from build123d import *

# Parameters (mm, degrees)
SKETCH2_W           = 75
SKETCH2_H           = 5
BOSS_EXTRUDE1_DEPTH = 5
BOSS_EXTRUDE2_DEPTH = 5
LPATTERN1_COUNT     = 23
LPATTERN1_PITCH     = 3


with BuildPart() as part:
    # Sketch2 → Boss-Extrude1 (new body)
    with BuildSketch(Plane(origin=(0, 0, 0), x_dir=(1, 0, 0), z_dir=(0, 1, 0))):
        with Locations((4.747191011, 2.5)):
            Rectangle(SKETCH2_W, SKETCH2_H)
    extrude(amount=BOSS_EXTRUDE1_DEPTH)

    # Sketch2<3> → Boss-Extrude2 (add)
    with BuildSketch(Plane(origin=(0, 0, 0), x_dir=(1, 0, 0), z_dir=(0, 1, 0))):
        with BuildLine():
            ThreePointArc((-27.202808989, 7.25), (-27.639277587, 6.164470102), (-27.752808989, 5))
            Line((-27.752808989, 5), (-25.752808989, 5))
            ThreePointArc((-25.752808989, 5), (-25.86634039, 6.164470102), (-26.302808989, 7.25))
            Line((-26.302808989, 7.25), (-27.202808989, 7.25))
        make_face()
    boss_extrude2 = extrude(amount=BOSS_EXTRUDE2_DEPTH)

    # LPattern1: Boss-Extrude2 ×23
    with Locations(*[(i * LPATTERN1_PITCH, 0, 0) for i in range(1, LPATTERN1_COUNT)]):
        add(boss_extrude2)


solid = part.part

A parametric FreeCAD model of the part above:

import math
import FreeCAD as App
import Part
import Sketcher
Q = App.Units.Quantity

doc = App.newDocument("Part")
body = doc.addObject("PartDesign::Body", "Body")

# Sketch on XZ plane
sketch1 = doc.addObject("Sketcher::SketchObject", "Sketch")
body.addObject(sketch1)
sketch1.AttachmentSupport = (doc.XZ_Plane, [""])
sketch1.MapMode = "FlatFace"
sketch1.addGeometry(Part.LineSegment(App.Vector(-32.752809, -5, 0), App.Vector(-32.752809, 0, 0)), False)
sketch1.addGeometry(Part.LineSegment(App.Vector(-32.752809, 0, 0), App.Vector(42.247191, 0, 0)), False)
sketch1.addGeometry(Part.LineSegment(App.Vector(42.247191, 0, 0), App.Vector(42.247191, -5, 0)), False)
sketch1.addGeometry(Part.LineSegment(App.Vector(42.247191, -5, 0), App.Vector(-32.752809, -5, 0)), False)
sketch1.addConstraint(Sketcher.Constraint("Coincident", 0, 2, 1, 1))
sketch1.addConstraint(Sketcher.Constraint("Coincident", 1, 2, 2, 1))
sketch1.addConstraint(Sketcher.Constraint("Coincident", 2, 2, 3, 1))
sketch1.addConstraint(Sketcher.Constraint("Coincident", 3, 2, 0, 1))
sketch1.addConstraint(Sketcher.Constraint("Vertical", 0))
sketch1.addConstraint(Sketcher.Constraint("Horizontal", 1))
sketch1.addConstraint(Sketcher.Constraint("Vertical", 2))
sketch1.addConstraint(Sketcher.Constraint("Horizontal", 3))
sketch1.addConstraint(Sketcher.Constraint("PointOnObject", 0, 2, -1))
sketch1.addConstraint(Sketcher.Constraint("DistanceX", 1, 1, 1, 2, Q("75 mm")))
sketch1.addConstraint(Sketcher.Constraint("DistanceY", 0, 1, 0, 2, Q("5 mm")))
sketch1.addConstraint(Sketcher.Constraint("DistanceX", 0, 2, -1, 1, Q("32.752809 mm")))
pad1 = doc.addObject("PartDesign::Pad", "Pad")
body.addObject(pad1)
pad1.Profile = sketch1
pad1.Length = 5
pad1.Reversed = True

# Sketch on XZ plane
sketch2 = doc.addObject("Sketcher::SketchObject", "Sketch001")
body.addObject(sketch2)
sketch2.AttachmentSupport = (doc.XZ_Plane, [""])
sketch2.MapMode = "FlatFace"
sketch2.addGeometry(Part.ArcOfCircle(Part.Circle(App.Vector(-23.639438, -5.186731, 0), App.Vector(0, 0, 1), 4.117608), math.radians(177.400774), math.radians(210.071763)), False)
sketch2.addGeometry(Part.LineSegment(App.Vector(-27.752809, -5, 0), App.Vector(-25.752809, -5, 0)), False)
sketch2.addGeometry(Part.ArcOfCircle(Part.Circle(App.Vector(-29.86618, -5.186731, 0), App.Vector(0, 0, 1), 4.117608), math.radians(-30.071763), math.radians(2.599226)), False)
sketch2.addGeometry(Part.LineSegment(App.Vector(-26.302809, -7.25, 0), App.Vector(-27.202809, -7.25, 0)), False)
sketch2.addConstraint(Sketcher.Constraint("Coincident", 0, 1, 1, 1))
sketch2.addConstraint(Sketcher.Constraint("Coincident", 1, 2, 2, 2))
sketch2.addConstraint(Sketcher.Constraint("Coincident", 2, 1, 3, 1))
sketch2.addConstraint(Sketcher.Constraint("Coincident", 3, 2, 0, 2))
sketch2.addConstraint(Sketcher.Constraint("Horizontal", 1))
sketch2.addConstraint(Sketcher.Constraint("Horizontal", 3))
sketch2.addConstraint(Sketcher.Constraint("Equal", 0, 2))
sketch2.addConstraint(Sketcher.Constraint("Horizontal", 0, 3, 2, 3))
sketch2.addConstraint(Sketcher.Constraint("DistanceX", 1, 1, 1, 2, Q("2 mm")))
sketch2.addConstraint(Sketcher.Constraint("DistanceX", 3, 2, 3, 1, Q("0.9 mm")))
sketch2.addConstraint(Sketcher.Constraint("DistanceY", 0, 1, -1, 1, Q("5 mm")))
sketch2.addConstraint(Sketcher.Constraint("DistanceY", 2, 1, -1, 1, Q("7.25 mm")))
sketch2.addConstraint(Sketcher.Constraint("Radius", 0, Q("4.117608 mm")))
sketch2.addConstraint(Sketcher.Constraint("DistanceX", 2, 3, -1, 1, Q("29.86618 mm")))
pad2 = doc.addObject("PartDesign::Pad", "Pad001")
body.addObject(pad2)
pad2.Profile = sketch2
pad2.Length = 5
pad2.Reversed = True
doc.recompute()

linearpattern = doc.addObject("PartDesign::LinearPattern", "LinearPattern")
body.addObject(linearpattern)
linearpattern.Originals = [pad2]
linearpattern.Direction = (doc.X_Axis, [""])
linearpattern.Mode = "offset"
linearpattern.Offset = 3
linearpattern.Occurrences = 23
body.Tip = linearpattern

doc.recompute()
